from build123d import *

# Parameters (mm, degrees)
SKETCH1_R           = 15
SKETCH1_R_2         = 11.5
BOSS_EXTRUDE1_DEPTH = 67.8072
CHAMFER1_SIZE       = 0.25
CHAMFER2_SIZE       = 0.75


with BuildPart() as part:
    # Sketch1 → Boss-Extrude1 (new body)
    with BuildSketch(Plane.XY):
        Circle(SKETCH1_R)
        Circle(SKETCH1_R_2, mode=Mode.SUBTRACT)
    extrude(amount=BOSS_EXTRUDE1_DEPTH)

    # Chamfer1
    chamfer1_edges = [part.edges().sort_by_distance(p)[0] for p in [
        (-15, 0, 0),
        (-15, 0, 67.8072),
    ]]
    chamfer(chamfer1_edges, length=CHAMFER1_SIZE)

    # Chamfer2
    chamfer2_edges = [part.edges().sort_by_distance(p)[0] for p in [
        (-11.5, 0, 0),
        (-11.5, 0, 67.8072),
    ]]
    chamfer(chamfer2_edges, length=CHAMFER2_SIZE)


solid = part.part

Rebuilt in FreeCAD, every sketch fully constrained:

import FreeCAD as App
import Part
import Sketcher
from FreeCAD import Vector
Q = App.Units.Quantity


def edges_at(feature, points):
    """Names of the edges that pass closest to the given points."""
    edges = feature.Shape.Edges
    near = lambda p: min(range(len(edges)), key=lambda i: edges[i].distToShape(Part.Vertex(*p))[0])
    return sorted({f"Edge{near(p) + 1}" for p in points})

doc = App.newDocument("Part")
body = doc.addObject("PartDesign::Body", "Body")

sketch1 = body.newObject("Sketcher::SketchObject", "Sketch")
sketch1.AttachmentSupport = (doc.getObject("XY_Plane"), [""])
sketch1.MapMode = "FlatFace"
sketch1.addGeometry(Part.Circle(Vector(0, 0, 0), Vector(0, 0, 1), 15), False)
sketch1.addGeometry(Part.Circle(Vector(0, 0, 0), Vector(0, 0, 1), 12), False)
sketch1.addConstraint(Sketcher.Constraint("Coincident", 0, 3, -1, 1))
sketch1.addConstraint(Sketcher.Constraint("Coincident", 1, 3, -1, 1))
sketch1.addConstraint(Sketcher.Constraint("Diameter", 0, Q("30 mm")))
sketch1.addConstraint(Sketcher.Constraint("Diameter", 1, Q("23 mm")))
pad1 = body.newObject("PartDesign::Pad", "Pad")
pad1.Profile = sketch1
pad1.Length = 67.8072
doc.recompute()

chamfer = body.newObject("PartDesign::Chamfer", "Chamfer")
chamfer.Base = (pad1, edges_at(pad1, [(-15, 0, 0), (-15, 0, 67.807)]))
chamfer.Size = 0.25
doc.recompute()

chamfer2 = body.newObject("PartDesign::Chamfer", "Chamfer001")
chamfer2.Base = (chamfer, edges_at(chamfer, [(-11.5, 0, 0), (-11.5, 0, 67.807)]))
chamfer2.Size = 0.75

doc.recompute()
